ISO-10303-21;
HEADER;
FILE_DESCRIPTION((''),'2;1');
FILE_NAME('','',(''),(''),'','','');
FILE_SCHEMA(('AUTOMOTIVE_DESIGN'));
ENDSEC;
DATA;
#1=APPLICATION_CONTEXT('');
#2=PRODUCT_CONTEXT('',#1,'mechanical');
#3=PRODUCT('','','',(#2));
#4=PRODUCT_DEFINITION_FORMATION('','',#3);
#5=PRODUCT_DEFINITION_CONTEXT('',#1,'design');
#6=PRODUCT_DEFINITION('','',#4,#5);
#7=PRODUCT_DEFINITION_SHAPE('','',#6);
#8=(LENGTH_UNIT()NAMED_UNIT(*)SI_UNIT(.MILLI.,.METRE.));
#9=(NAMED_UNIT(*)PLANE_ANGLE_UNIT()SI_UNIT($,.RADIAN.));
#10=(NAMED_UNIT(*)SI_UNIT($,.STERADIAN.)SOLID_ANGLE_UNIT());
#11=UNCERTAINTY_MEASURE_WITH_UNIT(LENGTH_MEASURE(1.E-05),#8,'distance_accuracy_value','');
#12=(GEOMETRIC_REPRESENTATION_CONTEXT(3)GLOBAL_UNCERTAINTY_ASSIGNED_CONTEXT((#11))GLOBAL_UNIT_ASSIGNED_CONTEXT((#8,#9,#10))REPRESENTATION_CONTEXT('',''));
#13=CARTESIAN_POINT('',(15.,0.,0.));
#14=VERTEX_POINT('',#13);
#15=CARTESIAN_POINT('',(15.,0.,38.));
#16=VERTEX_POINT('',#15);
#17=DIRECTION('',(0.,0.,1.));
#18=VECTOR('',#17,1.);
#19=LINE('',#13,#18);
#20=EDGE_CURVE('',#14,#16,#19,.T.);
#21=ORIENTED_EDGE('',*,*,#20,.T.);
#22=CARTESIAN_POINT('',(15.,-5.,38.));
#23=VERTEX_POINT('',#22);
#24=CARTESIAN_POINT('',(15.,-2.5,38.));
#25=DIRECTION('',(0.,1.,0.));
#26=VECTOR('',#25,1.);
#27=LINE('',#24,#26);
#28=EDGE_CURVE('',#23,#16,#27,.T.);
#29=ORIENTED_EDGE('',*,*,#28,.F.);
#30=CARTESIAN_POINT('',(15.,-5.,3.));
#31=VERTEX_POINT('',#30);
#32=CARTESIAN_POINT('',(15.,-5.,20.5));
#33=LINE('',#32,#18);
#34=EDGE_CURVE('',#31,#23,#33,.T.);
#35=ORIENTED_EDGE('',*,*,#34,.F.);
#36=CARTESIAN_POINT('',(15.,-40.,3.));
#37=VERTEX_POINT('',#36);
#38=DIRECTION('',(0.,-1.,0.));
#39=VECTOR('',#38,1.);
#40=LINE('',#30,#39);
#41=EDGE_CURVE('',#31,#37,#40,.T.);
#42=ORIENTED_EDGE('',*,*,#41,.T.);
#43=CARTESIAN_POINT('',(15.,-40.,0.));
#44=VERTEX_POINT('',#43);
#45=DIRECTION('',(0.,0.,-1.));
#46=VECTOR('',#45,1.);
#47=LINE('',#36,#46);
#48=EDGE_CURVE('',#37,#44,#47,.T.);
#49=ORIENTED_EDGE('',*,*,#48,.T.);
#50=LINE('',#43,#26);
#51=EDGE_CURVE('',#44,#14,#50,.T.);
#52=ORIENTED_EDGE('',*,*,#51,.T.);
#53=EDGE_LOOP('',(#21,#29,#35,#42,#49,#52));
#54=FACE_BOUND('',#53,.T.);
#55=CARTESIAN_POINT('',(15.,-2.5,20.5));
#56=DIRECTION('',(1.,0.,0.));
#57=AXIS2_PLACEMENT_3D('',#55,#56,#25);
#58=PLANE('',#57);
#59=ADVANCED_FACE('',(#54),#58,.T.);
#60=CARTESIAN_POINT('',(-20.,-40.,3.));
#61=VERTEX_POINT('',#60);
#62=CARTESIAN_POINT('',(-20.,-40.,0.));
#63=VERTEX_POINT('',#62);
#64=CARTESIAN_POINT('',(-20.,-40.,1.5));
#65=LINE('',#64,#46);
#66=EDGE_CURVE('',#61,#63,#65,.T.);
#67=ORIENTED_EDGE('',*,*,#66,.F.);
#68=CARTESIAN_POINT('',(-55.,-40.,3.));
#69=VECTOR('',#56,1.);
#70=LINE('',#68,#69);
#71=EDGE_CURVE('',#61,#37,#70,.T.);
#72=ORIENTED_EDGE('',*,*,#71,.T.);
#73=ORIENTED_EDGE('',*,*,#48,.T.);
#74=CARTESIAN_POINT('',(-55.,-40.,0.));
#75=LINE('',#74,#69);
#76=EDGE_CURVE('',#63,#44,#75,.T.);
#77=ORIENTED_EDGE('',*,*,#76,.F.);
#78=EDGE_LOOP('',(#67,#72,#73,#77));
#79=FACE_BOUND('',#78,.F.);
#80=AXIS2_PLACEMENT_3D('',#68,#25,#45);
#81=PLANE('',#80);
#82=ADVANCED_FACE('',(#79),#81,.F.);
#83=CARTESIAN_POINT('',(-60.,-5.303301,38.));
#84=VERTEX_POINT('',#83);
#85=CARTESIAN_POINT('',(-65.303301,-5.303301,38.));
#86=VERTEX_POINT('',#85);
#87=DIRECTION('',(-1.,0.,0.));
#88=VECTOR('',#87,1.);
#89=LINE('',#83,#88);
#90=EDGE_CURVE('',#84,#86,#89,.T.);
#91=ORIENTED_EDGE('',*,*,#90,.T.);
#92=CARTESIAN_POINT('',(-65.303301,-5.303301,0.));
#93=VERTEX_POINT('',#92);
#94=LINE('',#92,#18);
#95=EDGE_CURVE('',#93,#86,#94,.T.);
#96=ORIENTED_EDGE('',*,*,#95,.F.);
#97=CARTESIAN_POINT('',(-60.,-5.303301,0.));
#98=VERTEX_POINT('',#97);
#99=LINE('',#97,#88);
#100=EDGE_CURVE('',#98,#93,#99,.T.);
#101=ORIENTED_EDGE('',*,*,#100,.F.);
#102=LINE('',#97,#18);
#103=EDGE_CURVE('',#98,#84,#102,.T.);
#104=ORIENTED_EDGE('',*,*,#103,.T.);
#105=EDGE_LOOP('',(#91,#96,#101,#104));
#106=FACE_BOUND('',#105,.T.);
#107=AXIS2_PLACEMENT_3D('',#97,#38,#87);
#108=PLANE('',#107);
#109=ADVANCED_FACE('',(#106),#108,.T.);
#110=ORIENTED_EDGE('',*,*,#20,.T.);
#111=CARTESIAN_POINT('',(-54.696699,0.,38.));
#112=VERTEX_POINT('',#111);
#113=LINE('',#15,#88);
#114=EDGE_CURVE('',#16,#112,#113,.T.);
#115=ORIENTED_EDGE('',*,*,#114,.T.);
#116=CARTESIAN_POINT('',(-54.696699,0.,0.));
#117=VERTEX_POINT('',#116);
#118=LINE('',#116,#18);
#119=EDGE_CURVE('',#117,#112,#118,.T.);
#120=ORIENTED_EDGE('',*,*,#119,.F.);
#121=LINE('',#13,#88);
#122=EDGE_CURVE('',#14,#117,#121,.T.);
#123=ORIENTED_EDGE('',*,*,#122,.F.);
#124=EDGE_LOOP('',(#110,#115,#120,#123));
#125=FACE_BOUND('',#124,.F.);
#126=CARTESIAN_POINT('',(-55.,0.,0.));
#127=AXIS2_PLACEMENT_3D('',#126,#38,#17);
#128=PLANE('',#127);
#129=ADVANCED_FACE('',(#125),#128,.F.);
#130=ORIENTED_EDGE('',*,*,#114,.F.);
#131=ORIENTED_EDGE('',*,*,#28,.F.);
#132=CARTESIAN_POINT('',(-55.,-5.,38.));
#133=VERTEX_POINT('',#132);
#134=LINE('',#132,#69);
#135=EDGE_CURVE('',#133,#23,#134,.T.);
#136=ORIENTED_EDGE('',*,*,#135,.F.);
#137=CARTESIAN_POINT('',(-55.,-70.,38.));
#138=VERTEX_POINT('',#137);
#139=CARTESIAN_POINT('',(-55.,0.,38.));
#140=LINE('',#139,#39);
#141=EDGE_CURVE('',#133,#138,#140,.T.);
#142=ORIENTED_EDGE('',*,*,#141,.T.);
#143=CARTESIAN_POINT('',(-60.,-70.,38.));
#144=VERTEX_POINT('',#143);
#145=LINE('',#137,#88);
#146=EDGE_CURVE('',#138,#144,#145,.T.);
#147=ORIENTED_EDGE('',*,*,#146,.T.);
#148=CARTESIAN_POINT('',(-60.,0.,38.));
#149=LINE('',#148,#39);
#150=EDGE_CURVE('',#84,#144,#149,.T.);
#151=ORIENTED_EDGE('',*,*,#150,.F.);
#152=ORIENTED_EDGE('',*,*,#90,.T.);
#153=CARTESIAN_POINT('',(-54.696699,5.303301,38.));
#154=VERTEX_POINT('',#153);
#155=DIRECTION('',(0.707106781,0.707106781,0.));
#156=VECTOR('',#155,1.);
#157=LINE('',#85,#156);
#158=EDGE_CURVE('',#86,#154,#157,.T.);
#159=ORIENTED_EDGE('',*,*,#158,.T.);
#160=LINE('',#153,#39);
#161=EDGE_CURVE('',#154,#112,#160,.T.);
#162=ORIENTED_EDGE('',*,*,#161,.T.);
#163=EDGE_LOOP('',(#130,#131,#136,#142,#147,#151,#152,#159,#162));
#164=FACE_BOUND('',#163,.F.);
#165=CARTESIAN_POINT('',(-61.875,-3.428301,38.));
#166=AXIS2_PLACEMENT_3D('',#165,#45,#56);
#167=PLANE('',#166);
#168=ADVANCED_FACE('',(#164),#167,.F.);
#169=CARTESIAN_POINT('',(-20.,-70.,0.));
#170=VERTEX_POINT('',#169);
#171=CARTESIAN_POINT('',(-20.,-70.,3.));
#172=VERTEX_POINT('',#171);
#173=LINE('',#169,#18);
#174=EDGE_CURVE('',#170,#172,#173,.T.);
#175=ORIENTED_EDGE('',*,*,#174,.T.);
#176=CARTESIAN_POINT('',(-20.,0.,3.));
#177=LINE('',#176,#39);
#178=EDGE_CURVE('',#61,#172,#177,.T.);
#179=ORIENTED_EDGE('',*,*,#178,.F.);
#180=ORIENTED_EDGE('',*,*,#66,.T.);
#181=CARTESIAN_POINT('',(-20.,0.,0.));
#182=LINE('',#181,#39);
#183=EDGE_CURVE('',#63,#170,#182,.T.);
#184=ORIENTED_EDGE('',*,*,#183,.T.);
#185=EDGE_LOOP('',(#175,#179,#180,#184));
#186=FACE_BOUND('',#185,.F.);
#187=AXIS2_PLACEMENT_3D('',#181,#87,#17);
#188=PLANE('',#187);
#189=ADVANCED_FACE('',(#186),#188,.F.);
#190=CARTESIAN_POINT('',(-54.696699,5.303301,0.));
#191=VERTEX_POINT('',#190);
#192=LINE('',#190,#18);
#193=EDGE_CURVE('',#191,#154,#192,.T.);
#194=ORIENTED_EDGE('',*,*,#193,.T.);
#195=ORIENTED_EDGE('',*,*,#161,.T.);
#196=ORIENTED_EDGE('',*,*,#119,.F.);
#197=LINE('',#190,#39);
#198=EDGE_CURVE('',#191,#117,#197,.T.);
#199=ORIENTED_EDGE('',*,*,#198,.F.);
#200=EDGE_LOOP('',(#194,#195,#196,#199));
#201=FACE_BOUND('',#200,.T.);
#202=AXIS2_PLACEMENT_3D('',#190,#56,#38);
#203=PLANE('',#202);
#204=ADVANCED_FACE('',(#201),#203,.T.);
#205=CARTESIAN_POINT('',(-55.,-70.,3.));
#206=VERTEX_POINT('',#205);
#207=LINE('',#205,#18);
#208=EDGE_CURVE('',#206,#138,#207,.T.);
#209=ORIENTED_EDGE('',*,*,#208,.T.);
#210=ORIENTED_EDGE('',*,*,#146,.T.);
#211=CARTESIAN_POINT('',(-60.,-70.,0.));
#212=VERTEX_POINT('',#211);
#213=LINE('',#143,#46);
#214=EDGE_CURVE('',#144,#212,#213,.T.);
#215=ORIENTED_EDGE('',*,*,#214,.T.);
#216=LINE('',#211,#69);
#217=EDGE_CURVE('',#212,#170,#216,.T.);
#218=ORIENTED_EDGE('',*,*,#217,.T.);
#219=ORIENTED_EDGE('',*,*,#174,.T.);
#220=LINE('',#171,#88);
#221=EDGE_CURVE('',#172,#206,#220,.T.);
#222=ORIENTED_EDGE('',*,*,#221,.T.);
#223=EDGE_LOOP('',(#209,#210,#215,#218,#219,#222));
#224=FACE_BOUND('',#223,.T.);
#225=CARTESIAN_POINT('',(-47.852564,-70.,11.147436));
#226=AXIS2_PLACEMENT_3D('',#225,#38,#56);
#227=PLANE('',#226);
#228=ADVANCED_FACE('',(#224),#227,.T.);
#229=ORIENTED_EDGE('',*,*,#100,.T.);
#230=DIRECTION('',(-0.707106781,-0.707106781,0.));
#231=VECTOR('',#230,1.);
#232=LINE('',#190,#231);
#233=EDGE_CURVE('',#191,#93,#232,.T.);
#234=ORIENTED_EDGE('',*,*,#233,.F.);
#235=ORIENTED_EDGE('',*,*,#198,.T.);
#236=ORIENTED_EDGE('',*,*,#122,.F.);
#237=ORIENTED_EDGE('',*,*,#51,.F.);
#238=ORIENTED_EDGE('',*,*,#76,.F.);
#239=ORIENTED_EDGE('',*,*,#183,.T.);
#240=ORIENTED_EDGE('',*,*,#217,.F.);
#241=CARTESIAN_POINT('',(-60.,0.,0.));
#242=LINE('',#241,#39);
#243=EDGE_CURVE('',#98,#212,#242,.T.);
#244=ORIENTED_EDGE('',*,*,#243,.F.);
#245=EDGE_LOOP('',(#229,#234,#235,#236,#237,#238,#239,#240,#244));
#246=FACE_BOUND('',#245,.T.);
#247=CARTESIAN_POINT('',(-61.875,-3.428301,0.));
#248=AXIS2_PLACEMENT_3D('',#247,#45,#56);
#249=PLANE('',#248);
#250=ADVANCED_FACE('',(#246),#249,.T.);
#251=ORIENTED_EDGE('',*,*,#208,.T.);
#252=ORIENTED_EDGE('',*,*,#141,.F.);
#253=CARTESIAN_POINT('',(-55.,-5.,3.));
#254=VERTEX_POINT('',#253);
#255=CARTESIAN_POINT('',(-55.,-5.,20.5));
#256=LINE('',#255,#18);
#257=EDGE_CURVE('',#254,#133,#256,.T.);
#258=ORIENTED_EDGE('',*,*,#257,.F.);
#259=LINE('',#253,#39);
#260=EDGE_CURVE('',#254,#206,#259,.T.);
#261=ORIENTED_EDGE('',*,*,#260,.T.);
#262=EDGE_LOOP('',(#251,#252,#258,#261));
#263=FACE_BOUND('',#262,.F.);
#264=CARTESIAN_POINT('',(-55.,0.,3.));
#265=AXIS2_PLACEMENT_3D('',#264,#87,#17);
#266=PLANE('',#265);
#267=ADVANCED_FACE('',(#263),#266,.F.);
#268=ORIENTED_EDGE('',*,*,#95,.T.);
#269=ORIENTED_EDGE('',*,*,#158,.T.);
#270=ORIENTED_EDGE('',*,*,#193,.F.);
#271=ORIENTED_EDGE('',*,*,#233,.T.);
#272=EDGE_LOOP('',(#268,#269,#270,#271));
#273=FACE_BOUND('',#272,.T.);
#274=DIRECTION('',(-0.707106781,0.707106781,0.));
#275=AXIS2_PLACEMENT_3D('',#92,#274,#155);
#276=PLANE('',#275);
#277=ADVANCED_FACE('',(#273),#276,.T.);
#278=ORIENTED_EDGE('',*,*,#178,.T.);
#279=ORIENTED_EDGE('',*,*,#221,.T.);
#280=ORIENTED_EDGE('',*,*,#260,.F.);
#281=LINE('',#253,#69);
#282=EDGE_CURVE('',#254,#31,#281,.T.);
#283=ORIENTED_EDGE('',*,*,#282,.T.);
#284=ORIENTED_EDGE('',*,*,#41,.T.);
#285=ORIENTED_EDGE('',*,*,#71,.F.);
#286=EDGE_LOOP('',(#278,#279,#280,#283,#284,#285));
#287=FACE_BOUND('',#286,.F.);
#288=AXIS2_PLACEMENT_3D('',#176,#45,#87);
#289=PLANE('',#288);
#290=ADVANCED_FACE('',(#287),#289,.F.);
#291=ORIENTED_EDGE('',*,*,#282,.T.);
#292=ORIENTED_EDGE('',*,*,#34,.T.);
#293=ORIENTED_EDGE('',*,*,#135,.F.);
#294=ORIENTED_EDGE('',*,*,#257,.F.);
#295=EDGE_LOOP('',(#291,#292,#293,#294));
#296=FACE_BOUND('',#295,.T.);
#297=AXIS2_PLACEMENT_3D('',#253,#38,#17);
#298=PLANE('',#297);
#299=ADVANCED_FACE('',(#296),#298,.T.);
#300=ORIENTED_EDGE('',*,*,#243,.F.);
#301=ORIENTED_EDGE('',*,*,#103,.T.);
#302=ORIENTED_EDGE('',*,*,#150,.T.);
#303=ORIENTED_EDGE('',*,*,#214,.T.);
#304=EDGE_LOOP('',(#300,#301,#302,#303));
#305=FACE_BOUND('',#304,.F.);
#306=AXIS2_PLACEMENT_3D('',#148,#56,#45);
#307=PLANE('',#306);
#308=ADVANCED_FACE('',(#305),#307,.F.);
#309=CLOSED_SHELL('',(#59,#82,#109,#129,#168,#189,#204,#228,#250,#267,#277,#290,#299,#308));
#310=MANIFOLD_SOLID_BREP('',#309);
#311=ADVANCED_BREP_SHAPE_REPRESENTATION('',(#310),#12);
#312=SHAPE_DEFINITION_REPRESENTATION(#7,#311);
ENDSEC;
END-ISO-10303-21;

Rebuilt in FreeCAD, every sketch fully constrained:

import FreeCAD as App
import Part
import Sketcher
from FreeCAD import Vector
Q = App.Units.Quantity

doc = App.newDocument("Part")
body = doc.addObject("PartDesign::Body", "Body")

sketch1 = body.newObject("Sketcher::SketchObject", "Sketch")
sketch1.AttachmentSupport = (doc.getObject("XZ_Plane"), [""])
sketch1.MapMode = "FlatFace"
sketch1.addGeometry(Part.LineSegment(Vector(-55, 38, 0), Vector(-60, 38, 0)), False)
sketch1.addGeometry(Part.LineSegment(Vector(-60, 38, 0), Vector(-60, 0, 0)), False)
sketch1.addGeometry(Part.LineSegment(Vector(-60, 0, 0), Vector(-20, 0, 0)), False)
sketch1.addGeometry(Part.LineSegment(Vector(-20, 0, 0), Vector(-20, 3, 0)), False)
sketch1.addGeometry(Part.LineSegment(Vector(-20, 3, 0), Vector(-55, 3, 0)), False)
sketch1.addGeometry(Part.LineSegment(Vector(-55, 3, 0), Vector(-55, 38, 0)), False)
sketch1.addConstraint(Sketcher.Constraint("Coincident", 0, 2, 1, 1))
sketch1.addConstraint(Sketcher.Constraint("Coincident", 1, 2, 2, 1))
sketch1.addConstraint(Sketcher.Constraint("Coincident", 2, 2, 3, 1))
sketch1.addConstraint(Sketcher.Constraint("Coincident", 3, 2, 4, 1))
sketch1.addConstraint(Sketcher.Constraint("Coincident", 4, 2, 5, 1))
sketch1.addConstraint(Sketcher.Constraint("Coincident", 5, 2, 0, 1))
sketch1.addConstraint(Sketcher.Constraint("Horizontal", 0))
sketch1.addConstraint(Sketcher.Constraint("Vertical", 1))
sketch1.addConstraint(Sketcher.Constraint("Horizontal", 2))
sketch1.addConstraint(Sketcher.Constraint("Vertical", 3))
sketch1.addConstraint(Sketcher.Constraint("Horizontal", 4))
sketch1.addConstraint(Sketcher.Constraint("Vertical", 5))
sketch1.addConstraint(Sketcher.Constraint("PointOnObject", 1, 2, -1))
sketch1.addConstraint(Sketcher.Constraint("Equal", 4, 5))
sketch1.addConstraint(Sketcher.Constraint("DistanceX", 0, 2, 0, 1, Q("5 mm")))
sketch1.addConstraint(Sketcher.Constraint("DistanceX", 2, 1, 2, 2, Q("40 mm")))
sketch1.addConstraint(Sketcher.Constraint("DistanceY", 1, 2, 1, 1, Q("38 mm")))
sketch1.addConstraint(Sketcher.Constraint("DistanceX", 0, 2, -1, 1, Q("60 mm")))
pad1 = body.newObject("PartDesign::Pad", "Pad")
pad1.Profile = sketch1
pad1.Length = 70
body2 = doc.addObject("PartDesign::Body", "Body001")

sketch2 = body2.newObject("Sketcher::SketchObject", "Sketch001")
sketch2.AttachmentSupport = (doc.getObject("YZ_Plane001"), [""])
sketch2.MapMode = "FlatFace"
sketch2.AttachmentOffset = App.Placement(Vector(0, 0, -55), App.Rotation())
sketch2.addGeometry(Part.LineSegment(Vector(-5, 38, 0), Vector(-5, 3, 0)), False)
sketch2.addGeometry(Part.LineSegment(Vector(-5, 3, 0), Vector(-40, 3, 0)), False)
sketch2.addGeometry(Part.LineSegment(Vector(-40, 3, 0), Vector(-40, 0, 0)), False)
sketch2.addGeometry(Part.LineSegment(Vector(-40, 0, 0), Vector(0, 0, 0)), False)
sketch2.addGeometry(Part.LineSegment(Vector(0, 0, 0), Vector(0, 38, 0)), False)
sketch2.addGeometry(Part.LineSegment(Vector(0, 38, 0), Vector(-5, 38, 0)), False)
sketch2.addConstraint(Sketcher.Constraint("Coincident", 0, 2, 1, 1))
sketch2.addConstraint(Sketcher.Constraint("Coincident", 1, 2, 2, 1))
sketch2.addConstraint(Sketcher.Constraint("Coincident", 2, 2, 3, 1))
sketch2.addConstraint(Sketcher.Constraint("Coincident", 3, 2, 4, 1))
sketch2.addConstraint(Sketcher.Constraint("Coincident", 4, 2, 5, 1))
sketch2.addConstraint(Sketcher.Constraint("Coincident", 5, 2, 0, 1))
sketch2.addConstraint(Sketcher.Constraint("Vertical", 0))
sketch2.addConstraint(Sketcher.Constraint("Horizontal", 1))
sketch2.addConstraint(Sketcher.Constraint("Vertical", 2))
sketch2.addConstraint(Sketcher.Constraint("Horizontal", 3))
sketch2.addConstraint(Sketcher.Constraint("Vertical", 4))
sketch2.addConstraint(Sketcher.Constraint("Horizontal", 5))
sketch2.addConstraint(Sketcher.Constraint("Coincident", 3, 2, -1, 1))
sketch2.addConstraint(Sketcher.Constraint("Equal", 1, 0))
sketch2.addConstraint(Sketcher.Constraint("DistanceX", 1, 2, 1, 1, Q("35 mm")))
sketch2.addConstraint(Sketcher.Constraint("DistanceX", 3, 1, 3, 2, Q("40 mm")))
sketch2.addConstraint(Sketcher.Constraint("DistanceY", 2, 2, 2, 1, Q("3 mm")))
pad2 = body2.newObject("PartDesign::Pad", "Pad001")
pad2.Profile = sketch2
pad2.Length = 70
doc.recompute()

boolean = body.newObject("PartDesign::Boolean", "Boolean")
boolean.Type = "Fuse"
boolean.addObjects([body2])

sketch3 = body.newObject("Sketcher::SketchObject", "Sketch002")
sketch3.AttachmentSupport = (doc.getObject("XY_Plane"), [""])
sketch3.MapMode = "FlatFace"
sketch3.addGeometry(Part.LineSegment(Vector(-60, -5.303301, 0), Vector(-65.303301, -5.303301, 0)), False)
sketch3.addGeometry(Part.LineSegment(Vector(-65.303301, -5.303301, 0), Vector(-60, 0, 0)), False)
sketch3.addGeometry(Part.LineSegment(Vector(-60, 0, 0), Vector(-60, -5.303301, 0)), False)
sketch3.addGeometry(Part.LineSegment(Vector(-54.696699, 0, 0), Vector(-60, 0, 0)), False)
sketch3.addGeometry(Part.LineSegment(Vector(-60, 0, 0), Vector(-54.696699, 5.303301, 0)), False)
sketch3.addGeometry(Part.LineSegment(Vector(-54.696699, 5.303301, 0), Vector(-54.696699, 0, 0)), False)
sketch3.addConstraint(Sketcher.Constraint("Coincident", 0, 2, 1, 1))
sketch3.addConstraint(Sketcher.Constraint("Coincident", 1, 2, 2, 1))
sketch3.addConstraint(Sketcher.Constraint("Coincident", 2, 2, 0, 1))
sketch3.addConstraint(Sketcher.Constraint("Coincident", 3, 2, 4, 1))
sketch3.addConstraint(Sketcher.Constraint("Coincident", 4, 2, 5, 1))
sketch3.addConstraint(Sketcher.Constraint("Coincident", 5, 2, 3, 1))
sketch3.addConstraint(Sketcher.Constraint("Horizontal", 0))
sketch3.addConstraint(Sketcher.Constraint("Vertical", 2))
sketch3.addConstraint(Sketcher.Constraint("Horizontal", 3))
sketch3.addConstraint(Sketcher.Constraint("Vertical", 5))
sketch3.addConstraint(Sketcher.Constraint("Coincident", 3, 2, 1, 2))
sketch3.addConstraint(Sketcher.Constraint("PointOnObject", 1, 2, -1))
sketch3.addConstraint(Sketcher.Constraint("Parallel", 1, 4))
sketch3.addConstraint(Sketcher.Constraint("Equal", 0, 3))
sketch3.addConstraint(Sketcher.Constraint("Equal", 3, 2))
sketch3.addConstraint(Sketcher.Constraint("DistanceX", 1, 2, -1, 1, Q("60 mm")))
sketch3.addConstraint(Sketcher.Constraint("Distance", 1, Q("7.5 mm")))
pad3 = body.newObject("PartDesign::Pad", "Pad002")
pad3.Profile = sketch3
pad3.Type = "UpToLast"

doc.recompute()
